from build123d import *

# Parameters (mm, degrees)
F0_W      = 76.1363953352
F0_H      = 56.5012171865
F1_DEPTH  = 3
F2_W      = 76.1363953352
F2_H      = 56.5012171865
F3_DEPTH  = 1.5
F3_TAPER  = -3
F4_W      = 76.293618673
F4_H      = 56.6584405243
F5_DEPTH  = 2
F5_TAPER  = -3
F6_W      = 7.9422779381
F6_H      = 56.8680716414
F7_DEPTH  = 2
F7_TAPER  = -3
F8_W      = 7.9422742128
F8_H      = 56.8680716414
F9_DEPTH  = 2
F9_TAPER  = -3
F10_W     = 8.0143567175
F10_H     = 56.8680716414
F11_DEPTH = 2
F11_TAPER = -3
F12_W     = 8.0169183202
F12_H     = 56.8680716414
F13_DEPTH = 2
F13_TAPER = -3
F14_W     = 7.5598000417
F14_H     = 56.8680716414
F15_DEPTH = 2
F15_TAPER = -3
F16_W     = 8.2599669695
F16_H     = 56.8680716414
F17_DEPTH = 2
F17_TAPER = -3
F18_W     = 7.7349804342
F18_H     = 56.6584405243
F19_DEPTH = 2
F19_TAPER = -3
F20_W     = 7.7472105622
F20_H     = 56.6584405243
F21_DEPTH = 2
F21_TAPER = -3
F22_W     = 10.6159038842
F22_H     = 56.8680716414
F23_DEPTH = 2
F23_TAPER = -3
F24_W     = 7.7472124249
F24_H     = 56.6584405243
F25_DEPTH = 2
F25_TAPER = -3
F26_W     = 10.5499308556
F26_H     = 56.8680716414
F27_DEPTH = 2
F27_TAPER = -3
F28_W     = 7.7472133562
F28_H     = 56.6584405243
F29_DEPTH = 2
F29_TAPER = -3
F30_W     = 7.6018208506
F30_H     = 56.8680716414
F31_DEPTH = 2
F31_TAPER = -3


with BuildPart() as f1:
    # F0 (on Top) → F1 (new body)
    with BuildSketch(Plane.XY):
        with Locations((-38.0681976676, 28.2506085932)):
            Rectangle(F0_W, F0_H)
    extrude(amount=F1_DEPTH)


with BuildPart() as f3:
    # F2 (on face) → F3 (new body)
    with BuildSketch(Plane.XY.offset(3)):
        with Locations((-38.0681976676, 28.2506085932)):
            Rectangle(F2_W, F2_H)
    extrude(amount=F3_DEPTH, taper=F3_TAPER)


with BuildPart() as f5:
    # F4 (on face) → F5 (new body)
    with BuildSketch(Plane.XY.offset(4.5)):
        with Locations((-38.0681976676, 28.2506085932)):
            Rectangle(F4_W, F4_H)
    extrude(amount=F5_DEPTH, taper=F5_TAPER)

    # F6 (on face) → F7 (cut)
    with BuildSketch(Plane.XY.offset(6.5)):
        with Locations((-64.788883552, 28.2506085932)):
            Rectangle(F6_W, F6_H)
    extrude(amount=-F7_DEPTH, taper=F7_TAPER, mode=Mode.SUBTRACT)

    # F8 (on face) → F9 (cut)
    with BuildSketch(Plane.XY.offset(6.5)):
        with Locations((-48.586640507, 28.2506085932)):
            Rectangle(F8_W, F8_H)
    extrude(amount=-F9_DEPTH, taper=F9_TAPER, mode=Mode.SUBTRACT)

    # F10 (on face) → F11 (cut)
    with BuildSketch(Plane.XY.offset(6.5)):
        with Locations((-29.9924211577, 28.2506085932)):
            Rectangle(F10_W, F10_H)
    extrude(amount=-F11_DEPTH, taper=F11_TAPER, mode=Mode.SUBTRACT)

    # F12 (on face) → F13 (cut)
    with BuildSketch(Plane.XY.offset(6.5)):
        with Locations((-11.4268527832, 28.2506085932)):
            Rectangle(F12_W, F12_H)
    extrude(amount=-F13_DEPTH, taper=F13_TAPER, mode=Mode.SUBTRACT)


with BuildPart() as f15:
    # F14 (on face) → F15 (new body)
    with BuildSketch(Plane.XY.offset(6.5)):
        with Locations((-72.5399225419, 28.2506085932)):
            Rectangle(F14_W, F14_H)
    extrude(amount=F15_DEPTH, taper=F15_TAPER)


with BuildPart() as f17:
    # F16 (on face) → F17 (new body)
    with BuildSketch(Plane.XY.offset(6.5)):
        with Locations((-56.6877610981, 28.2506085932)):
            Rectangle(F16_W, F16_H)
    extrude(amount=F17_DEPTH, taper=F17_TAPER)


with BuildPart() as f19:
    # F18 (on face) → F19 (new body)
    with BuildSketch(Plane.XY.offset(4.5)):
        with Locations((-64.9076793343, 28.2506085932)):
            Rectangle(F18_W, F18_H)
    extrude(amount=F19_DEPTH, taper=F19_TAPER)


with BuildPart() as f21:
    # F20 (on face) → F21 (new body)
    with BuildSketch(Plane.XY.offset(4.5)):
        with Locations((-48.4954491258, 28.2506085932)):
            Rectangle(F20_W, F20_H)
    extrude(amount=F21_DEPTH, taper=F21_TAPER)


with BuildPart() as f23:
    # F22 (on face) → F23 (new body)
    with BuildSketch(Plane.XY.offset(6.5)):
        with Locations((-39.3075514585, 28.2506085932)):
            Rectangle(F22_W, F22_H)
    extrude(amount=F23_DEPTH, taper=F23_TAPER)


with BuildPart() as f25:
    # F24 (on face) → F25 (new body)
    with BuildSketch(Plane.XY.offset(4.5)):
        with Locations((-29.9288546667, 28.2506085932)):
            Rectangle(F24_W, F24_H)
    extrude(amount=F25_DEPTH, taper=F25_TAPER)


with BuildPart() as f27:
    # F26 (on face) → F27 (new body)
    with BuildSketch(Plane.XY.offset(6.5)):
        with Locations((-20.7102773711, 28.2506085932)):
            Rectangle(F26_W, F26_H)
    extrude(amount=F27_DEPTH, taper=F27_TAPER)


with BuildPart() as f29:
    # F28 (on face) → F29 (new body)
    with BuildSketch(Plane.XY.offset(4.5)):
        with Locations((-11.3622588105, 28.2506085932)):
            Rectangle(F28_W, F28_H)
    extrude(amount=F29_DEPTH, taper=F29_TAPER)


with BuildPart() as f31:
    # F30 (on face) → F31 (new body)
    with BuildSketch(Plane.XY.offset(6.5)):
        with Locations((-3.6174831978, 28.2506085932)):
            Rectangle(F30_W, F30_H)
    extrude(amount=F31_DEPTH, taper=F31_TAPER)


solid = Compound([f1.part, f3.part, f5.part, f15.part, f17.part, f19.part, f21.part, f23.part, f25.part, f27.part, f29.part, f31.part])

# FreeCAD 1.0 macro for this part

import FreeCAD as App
import Part
import Sketcher

V = App.Vector
Q = App.Units.Quantity


def add_polygon(sketch, points):
    """Adds a closed chain of lines whose ends are joined by coincident constraints."""
    first, n = sketch.GeometryCount, len(points)
    for a, b in zip(points, points[1:] + points[:1]):
        sketch.addGeometry(Part.LineSegment(App.Vector(*a, 0), App.Vector(*b, 0)), False)
    for i in range(n):
        sketch.addConstraint(Sketcher.Constraint("Coincident", first + i, 2, first + (i + 1) % n, 1))

doc = App.newDocument("Part")
body = doc.addObject("PartDesign::Body", "Body")

sketch1 = body.newObject("Sketcher::SketchObject", "Sketch")
sketch1.AttachmentSupport = (doc.getObject("XY_Plane"), [""])
sketch1.MapMode = "FlatFace"
add_polygon(sketch1, [(-76.136395, 56.501217), (-76.136395, 0), (0, 0), (0, 56.501217)])
sketch1.addConstraint([
    Sketcher.Constraint("Vertical", 0),
    Sketcher.Constraint("Horizontal", 1),
    Sketcher.Constraint("Vertical", 2),
    Sketcher.Constraint("Horizontal", 3),
    Sketcher.Constraint("Coincident", 1, 2, -1, 1),
    Sketcher.Constraint("DistanceX", 1, 1, 1, 2, Q("76.136395 mm")),
    Sketcher.Constraint("DistanceY", 0, 2, 0, 1, Q("56.501217 mm")),
])
pad1 = body.newObject("PartDesign::Pad", "Pad")
pad1.Profile = sketch1
pad1.Length = 3
body2 = doc.addObject("PartDesign::Body", "Body001")

sketch2 = body2.newObject("Sketcher::SketchObject", "Sketch001")
sketch2.AttachmentSupport = (doc.getObject("XY_Plane001"), [""])
sketch2.MapMode = "FlatFace"
sketch2.AttachmentOffset = App.Placement(V(0, 0, 3), App.Rotation())
add_polygon(sketch2, [(-76.136395, 56.501217), (-76.136395, 0), (0, 0), (0, 56.501217)])
sketch2.addConstraint([
    Sketcher.Constraint("Vertical", 0),
    Sketcher.Constraint("Horizontal", 1),
    Sketcher.Constraint("Vertical", 2),
    Sketcher.Constraint("Horizontal", 3),
    Sketcher.Constraint("Coincident", 1, 2, -1, 1),
    Sketcher.Constraint("DistanceX", 1, 1, 1, 2, Q("76.136395 mm")),
    Sketcher.Constraint("DistanceY", 0, 2, 0, 1, Q("56.501217 mm")),
])
pad2 = body2.newObject("PartDesign::Pad", "Pad001")
pad2.Profile = sketch2
pad2.Length = 1.5
pad2.TaperAngle = 3
body3 = doc.addObject("PartDesign::Body", "Body002")
body3.AllowCompound = True

sketch3 = body3.newObject("Sketcher::SketchObject", "Sketch002")
sketch3.AttachmentSupport = (doc.getObject("XY_Plane002"), [""])
sketch3.MapMode = "FlatFace"
sketch3.AttachmentOffset = App.Placement(V(0, 0, 4.5), App.Rotation())
add_polygon(sketch3, [(-76.215007, 56.579829), (-76.215007, -0.078612), (0.078612, -0.078612), (0.078612, 56.579829)])
sketch3.addConstraint([
    Sketcher.Constraint("Vertical", 0),
    Sketcher.Constraint("Horizontal", 1),
    Sketcher.Constraint("Vertical", 2),
    Sketcher.Constraint("Horizontal", 3),
    Sketcher.Constraint("DistanceX", 1, 1, 1, 2, Q("76.293619 mm")),
    Sketcher.Constraint("DistanceY", 0, 2, 0, 1, Q("56.658441 mm")),
    Sketcher.Constraint("DistanceY", 0, 2, -1, 1, Q("0.078612 mm")),
    Sketcher.Constraint("DistanceX", -1, 1, 1, 2, Q("0.078612 mm")),
])
pad3 = body3.newObject("PartDesign::Pad", "Pad002")
pad3.Profile = sketch3
pad3.Length = 2
pad3.TaperAngle = 3

sketch4 = body3.newObject("Sketcher::SketchObject", "Sketch003")
sketch4.AttachmentSupport = (doc.getObject("XY_Plane002"), [""])
sketch4.MapMode = "FlatFace"
sketch4.AttachmentOffset = App.Placement(V(0, 0, 6.5), App.Rotation())
add_polygon(sketch4, [(-68.760023, 56.684644), (-68.760023, -0.183427), (-60.817745, -0.183427), (-60.817745, 56.684644)])
sketch4.addConstraint([
    Sketcher.Constraint("Vertical", 0),
    Sketcher.Constraint("Horizontal", 1),
    Sketcher.Constraint("Vertical", 2),
    Sketcher.Constraint("Horizontal", 3),
    Sketcher.Constraint("DistanceY", 0, 2, 0, 1, Q("56.868072 mm")),
    Sketcher.Constraint("DistanceX", 1, 1, 1, 2, Q("7.942278 mm")),
    Sketcher.Constraint("DistanceX", 0, 2, -1, 1, Q("68.760023 mm")),
    Sketcher.Constraint("DistanceY", 0, 2, -1, 1, Q("0.183427 mm")),
])
pocket1 = body3.newObject("PartDesign::Pocket", "Pocket")
pocket1.Profile = sketch4
pocket1.Length = 2
pocket1.TaperAngle = 3

sketch5 = body3.newObject("Sketcher::SketchObject", "Sketch004")
sketch5.AttachmentSupport = (doc.getObject("XY_Plane002"), [""])
sketch5.MapMode = "FlatFace"
sketch5.AttachmentOffset = App.Placement(V(0, 0, 6.5), App.Rotation())
add_polygon(sketch5, [(-52.557778, 56.684644), (-52.557778, -0.183427), (-44.615503, -0.183427), (-44.615503, 56.684644)])
sketch5.addConstraint([
    Sketcher.Constraint("Vertical", 0),
    Sketcher.Constraint("Horizontal", 1),
    Sketcher.Constraint("Vertical", 2),
    Sketcher.Constraint("Horizontal", 3),
    Sketcher.Constraint("DistanceY", 0, 2, 0, 1, Q("56.868072 mm")),
    Sketcher.Constraint("DistanceX", 1, 1, 1, 2, Q("7.942274 mm")),
    Sketcher.Constraint("DistanceX", 0, 2, -1, 1, Q("52.557778 mm")),
    Sketcher.Constraint("DistanceY", 0, 2, -1, 1, Q("0.183427 mm")),
])
pocket2 = body3.newObject("PartDesign::Pocket", "Pocket001")
pocket2.Profile = sketch5
pocket2.Length = 2
pocket2.TaperAngle = 3

sketch6 = body3.newObject("Sketcher::SketchObject", "Sketch005")
sketch6.AttachmentSupport = (doc.getObject("XY_Plane002"), [""])
sketch6.MapMode = "FlatFace"
sketch6.AttachmentOffset = App.Placement(V(0, 0, 6.5), App.Rotation())
add_polygon(sketch6, [(-33.9996, 56.684644), (-33.9996, -0.183427), (-25.985243, -0.183427), (-25.985243, 56.684644)])
sketch6.addConstraint([
    Sketcher.Constraint("Vertical", 0),
    Sketcher.Constraint("Horizontal", 1),
    Sketcher.Constraint("Vertical", 2),
    Sketcher.Constraint("Horizontal", 3),
    Sketcher.Constraint("DistanceY", 0, 2, 0, 1, Q("56.868072 mm")),
    Sketcher.Constraint("DistanceX", 0, 2, -1, 1, Q("33.9996 mm")),
    Sketcher.Constraint("DistanceX", 1, 1, 1, 2, Q("8.014357 mm")),
    Sketcher.Constraint("DistanceY", 0, 2, -1, 1, Q("0.183427 mm")),
])
pocket3 = body3.newObject("PartDesign::Pocket", "Pocket002")
pocket3.Profile = sketch6
pocket3.Length = 2
pocket3.TaperAngle = 3

sketch7 = body3.newObject("Sketcher::SketchObject", "Sketch006")
sketch7.AttachmentSupport = (doc.getObject("XY_Plane002"), [""])
sketch7.MapMode = "FlatFace"
sketch7.AttachmentOffset = App.Placement(V(0, 0, 6.5), App.Rotation())
add_polygon(sketch7, [(-15.435312, 56.684644), (-15.435312, -0.183427), (-7.418394, -0.183427), (-7.418394, 56.684644)])
sketch7.addConstraint([
    Sketcher.Constraint("Vertical", 0),
    Sketcher.Constraint("Horizontal", 1),
    Sketcher.Constraint("Vertical", 2),
    Sketcher.Constraint("Horizontal", 3),
    Sketcher.Constraint("DistanceX", 1, 1, 1, 2, Q("8.016918 mm")),
    Sketcher.Constraint("DistanceY", 0, 2, 0, 1, Q("56.868072 mm")),
    Sketcher.Constraint("DistanceX", 0, 2, -1, 1, Q("15.435312 mm")),
    Sketcher.Constraint("DistanceY", 0, 2, -1, 1, Q("0.183427 mm")),
])
pocket4 = body3.newObject("PartDesign::Pocket", "Pocket003")
pocket4.Profile = sketch7
pocket4.Length = 2
pocket4.TaperAngle = 3
body4 = doc.addObject("PartDesign::Body", "Body003")

sketch8 = body4.newObject("Sketcher::SketchObject", "Sketch007")
sketch8.AttachmentSupport = (doc.getObject("XY_Plane003"), [""])
sketch8.MapMode = "FlatFace"
sketch8.AttachmentOffset = App.Placement(V(0, 0, 6.5), App.Rotation())
add_polygon(sketch8, [(-76.319823, 56.684644), (-76.319823, -0.183427), (-68.760023, -0.183427), (-68.760023, 56.684644)])
sketch8.addConstraint([
    Sketcher.Constraint("Vertical", 0),
    Sketcher.Constraint("Horizontal", 1),
    Sketcher.Constraint("Vertical", 2),
    Sketcher.Constraint("Horizontal", 3),
    Sketcher.Constraint("DistanceX", 1, 1, 1, 2, Q("7.5598 mm")),
    Sketcher.Constraint("DistanceY", 0, 2, 0, 1, Q("56.868072 mm")),
    Sketcher.Constraint("DistanceX", 0, 2, -1, 1, Q("76.319823 mm")),
    Sketcher.Constraint("DistanceY", 0, 2, -1, 1, Q("0.183427 mm")),
])
pad4 = body4.newObject("PartDesign::Pad", "Pad003")
pad4.Profile = sketch8
pad4.Length = 2
pad4.TaperAngle = 3
body5 = doc.addObject("PartDesign::Body", "Body004")

sketch9 = body5.newObject("Sketcher::SketchObject", "Sketch008")
sketch9.AttachmentSupport = (doc.getObject("XY_Plane004"), [""])
sketch9.MapMode = "FlatFace"
sketch9.AttachmentOffset = App.Placement(V(0, 0, 6.5), App.Rotation())
add_polygon(sketch9, [(-60.817745, 56.684644), (-60.817745, -0.183427), (-52.557778, -0.183427), (-52.557778, 56.684644)])
sketch9.addConstraint([
    Sketcher.Constraint("Vertical", 0),
    Sketcher.Constraint("Horizontal", 1),
    Sketcher.Constraint("Vertical", 2),
    Sketcher.Constraint("Horizontal", 3),
    Sketcher.Constraint("DistanceY", 0, 2, 0, 1, Q("56.868072 mm")),
    Sketcher.Constraint("DistanceX", 1, 1, 1, 2, Q("8.259967 mm")),
    Sketcher.Constraint("DistanceX", 0, 2, -1, 1, Q("60.817745 mm")),
    Sketcher.Constraint("DistanceY", 0, 2, -1, 1, Q("0.183427 mm")),
])
pad5 = body5.newObject("PartDesign::Pad", "Pad004")
pad5.Profile = sketch9
pad5.Length = 2
pad5.TaperAngle = 3
body6 = doc.addObject("PartDesign::Body", "Body005")

sketch10 = body6.newObject("Sketcher::SketchObject", "Sketch009")
sketch10.AttachmentSupport = (doc.getObject("XY_Plane005"), [""])
sketch10.MapMode = "FlatFace"
sketch10.AttachmentOffset = App.Placement(V(0, 0, 4.5), App.Rotation())
add_polygon(sketch10, [(-68.77517, 56.579829), (-68.77517, -0.078612), (-61.040189, -0.078612), (-61.040189, 56.579829)])
sketch10.addConstraint([
    Sketcher.Constraint("Vertical", 0),
    Sketcher.Constraint("Horizontal", 1),
    Sketcher.Constraint("Vertical", 2),
    Sketcher.Constraint("Horizontal", 3),
    Sketcher.Constraint("DistanceX", 1, 1, 1, 2, Q("7.73498 mm")),
    Sketcher.Constraint("DistanceY", 0, 2, 0, 1, Q("56.658441 mm")),
    Sketcher.Constraint("DistanceX", 0, 2, -1, 1, Q("68.77517 mm")),
    Sketcher.Constraint("DistanceY", 0, 2, -1, 1, Q("0.078612 mm")),
])
pad6 = body6.newObject("PartDesign::Pad", "Pad005")
pad6.Profile = sketch10
pad6.Length = 2
pad6.TaperAngle = 3
body7 = doc.addObject("PartDesign::Body", "Body006")

sketch11 = body7.newObject("Sketcher::SketchObject", "Sketch010")
sketch11.AttachmentSupport = (doc.getObject("XY_Plane006"), [""])
sketch11.MapMode = "FlatFace"
sketch11.AttachmentOffset = App.Placement(V(0, 0, 4.5), App.Rotation())
add_polygon(sketch11, [(-52.369054, 56.579829), (-52.369054, -0.078612), (-44.621844, -0.078612), (-44.621844, 56.579829)])
sketch11.addConstraint([
    Sketcher.Constraint("Vertical", 0),
    Sketcher.Constraint("Horizontal", 1),
    Sketcher.Constraint("Vertical", 2),
    Sketcher.Constraint("Horizontal", 3),
    Sketcher.Constraint("DistanceX", 1, 1, 1, 2, Q("7.747211 mm")),
    Sketcher.Constraint("DistanceY", 0, 2, 0, 1, Q("56.658441 mm")),
    Sketcher.Constraint("DistanceY", 0, 2, -1, 1, Q("0.078612 mm")),
    Sketcher.Constraint("DistanceX", 0, 2, -1, 1, Q("52.369054 mm")),
])
pad7 = body7.newObject("PartDesign::Pad", "Pad006")
pad7.Profile = sketch11
pad7.Length = 2
pad7.TaperAngle = 3
body8 = doc.addObject("PartDesign::Body", "Body007")

sketch12 = body8.newObject("Sketcher::SketchObject", "Sketch011")
sketch12.AttachmentSupport = (doc.getObject("XY_Plane007"), [""])
sketch12.MapMode = "FlatFace"
sketch12.AttachmentOffset = App.Placement(V(0, 0, 6.5), App.Rotation())
add_polygon(sketch12, [(-44.615503, 56.684644), (-44.615503, -0.183427), (-33.9996, -0.183427), (-33.9996, 56.684644)])
sketch12.addConstraint([
    Sketcher.Constraint("Vertical", 0),
    Sketcher.Constraint("Horizontal", 1),
    Sketcher.Constraint("Vertical", 2),
    Sketcher.Constraint("Horizontal", 3),
    Sketcher.Constraint("DistanceY", 0, 2, 0, 1, Q("56.868072 mm")),
    Sketcher.Constraint("DistanceX", 1, 2, -1, 1, Q("33.9996 mm")),
    Sketcher.Constraint("DistanceX", 1, 1, 1, 2, Q("10.615904 mm")),
    Sketcher.Constraint("DistanceY", 0, 2, -1, 1, Q("0.183427 mm")),
])
pad8 = body8.newObject("PartDesign::Pad", "Pad007")
pad8.Profile = sketch12
pad8.Length = 2
pad8.TaperAngle = 3
body9 = doc.addObject("PartDesign::Body", "Body008")

sketch13 = body9.newObject("Sketcher::SketchObject", "Sketch012")
sketch13.AttachmentSupport = (doc.getObject("XY_Plane008"), [""])
sketch13.MapMode = "FlatFace"
sketch13.AttachmentOffset = App.Placement(V(0, 0, 4.5), App.Rotation())
add_polygon(sketch13, [(-33.802461, 56.579829), (-33.802461, -0.078612), (-26.055248, -0.078612), (-26.055248, 56.579829)])
sketch13.addConstraint([
    Sketcher.Constraint("Vertical", 0),
    Sketcher.Constraint("Horizontal", 1),
    Sketcher.Constraint("Vertical", 2),
    Sketcher.Constraint("Horizontal", 3),
    Sketcher.Constraint("DistanceY", 0, 2, 0, 1, Q("56.658441 mm")),
    Sketcher.Constraint("DistanceX", 1, 1, 1, 2, Q("7.747212 mm")),
    Sketcher.Constraint("DistanceX", 0, 2, -1, 1, Q("33.802461 mm")),
    Sketcher.Constraint("DistanceY", 0, 2, -1, 1, Q("0.078612 mm")),
])
pad9 = body9.newObject("PartDesign::Pad", "Pad008")
pad9.Profile = sketch13
pad9.Length = 2
pad9.TaperAngle = 3
body10 = doc.addObject("PartDesign::Body", "Body009")

sketch14 = body10.newObject("Sketcher::SketchObject", "Sketch013")
sketch14.AttachmentSupport = (doc.getObject("XY_Plane009"), [""])
sketch14.MapMode = "FlatFace"
sketch14.AttachmentOffset = App.Placement(V(0, 0, 6.5), App.Rotation())
add_polygon(sketch14, [(-25.985243, 56.684644), (-25.985243, -0.183427), (-15.435312, -0.183427), (-15.435312, 56.684644)])
sketch14.addConstraint([
    Sketcher.Constraint("Vertical", 0),
    Sketcher.Constraint("Horizontal", 1),
    Sketcher.Constraint("Vertical", 2),
    Sketcher.Constraint("Horizontal", 3),
    Sketcher.Constraint("DistanceX", 1, 1, 1, 2, Q("10.549931 mm")),
    Sketcher.Constraint("DistanceY", 0, 2, 0, 1, Q("56.868072 mm")),
    Sketcher.Constraint("DistanceX", 1, 2, -1, 1, Q("15.435312 mm")),
    Sketcher.Constraint("DistanceY", 0, 2, -1, 1, Q("0.183427 mm")),
])
pad10 = body10.newObject("PartDesign::Pad", "Pad009")
pad10.Profile = sketch14
pad10.Length = 2
pad10.TaperAngle = 3
body11 = doc.addObject("PartDesign::Body", "Body010")

sketch15 = body11.newObject("Sketcher::SketchObject", "Sketch014")
sketch15.AttachmentSupport = (doc.getObject("XY_Plane010"), [""])
sketch15.MapMode = "FlatFace"
sketch15.AttachmentOffset = App.Placement(V(0, 0, 4.5), App.Rotation())
add_polygon(sketch15, [(-15.235865, 56.579829), (-15.235865, -0.078612), (-7.488652, -0.078612), (-7.488652, 56.579829)])
sketch15.addConstraint([
    Sketcher.Constraint("Vertical", 0),
    Sketcher.Constraint("Horizontal", 1),
    Sketcher.Constraint("Vertical", 2),
    Sketcher.Constraint("Horizontal", 3),
    Sketcher.Constraint("DistanceY", 0, 2, 0, 1, Q("56.658441 mm")),
    Sketcher.Constraint("DistanceX", 1, 1, 1, 2, Q("7.747213 mm")),
    Sketcher.Constraint("DistanceY", 0, 2, -1, 1, Q("0.078612 mm")),
    Sketcher.Constraint("DistanceX", 0, 2, -1, 1, Q("15.235865 mm")),
])
pad11 = body11.newObject("PartDesign::Pad", "Pad010")
pad11.Profile = sketch15
pad11.Length = 2
pad11.TaperAngle = 3
body12 = doc.addObject("PartDesign::Body", "Body011")

sketch16 = body12.newObject("Sketcher::SketchObject", "Sketch015")
sketch16.AttachmentSupport = (doc.getObject("XY_Plane011"), [""])
sketch16.MapMode = "FlatFace"
sketch16.AttachmentOffset = App.Placement(V(0, 0, 6.5), App.Rotation())
add_polygon(sketch16, [(-7.418394, 56.684644), (-7.418394, -0.183427), (0.183427, -0.183427), (0.183427, 56.684644)])
sketch16.addConstraint([
    Sketcher.Constraint("Vertical", 0),
    Sketcher.Constraint("Horizontal", 1),
    Sketcher.Constraint("Vertical", 2),
    Sketcher.Constraint("Horizontal", 3),
    Sketcher.Constraint("DistanceX", 1, 1, 1, 2, Q("7.601821 mm")),
    Sketcher.Constraint("DistanceY", 0, 2, 0, 1, Q("56.868072 mm")),
    Sketcher.Constraint("DistanceX", 0, 2, -1, 1, Q("7.418394 mm")),
    Sketcher.Constraint("DistanceY", 0, 2, -1, 1, Q("0.183427 mm")),
])
pad12 = body12.newObject("PartDesign::Pad", "Pad011")
pad12.Profile = sketch16
pad12.Length = 2
pad12.TaperAngle = 3

doc.recompute()
